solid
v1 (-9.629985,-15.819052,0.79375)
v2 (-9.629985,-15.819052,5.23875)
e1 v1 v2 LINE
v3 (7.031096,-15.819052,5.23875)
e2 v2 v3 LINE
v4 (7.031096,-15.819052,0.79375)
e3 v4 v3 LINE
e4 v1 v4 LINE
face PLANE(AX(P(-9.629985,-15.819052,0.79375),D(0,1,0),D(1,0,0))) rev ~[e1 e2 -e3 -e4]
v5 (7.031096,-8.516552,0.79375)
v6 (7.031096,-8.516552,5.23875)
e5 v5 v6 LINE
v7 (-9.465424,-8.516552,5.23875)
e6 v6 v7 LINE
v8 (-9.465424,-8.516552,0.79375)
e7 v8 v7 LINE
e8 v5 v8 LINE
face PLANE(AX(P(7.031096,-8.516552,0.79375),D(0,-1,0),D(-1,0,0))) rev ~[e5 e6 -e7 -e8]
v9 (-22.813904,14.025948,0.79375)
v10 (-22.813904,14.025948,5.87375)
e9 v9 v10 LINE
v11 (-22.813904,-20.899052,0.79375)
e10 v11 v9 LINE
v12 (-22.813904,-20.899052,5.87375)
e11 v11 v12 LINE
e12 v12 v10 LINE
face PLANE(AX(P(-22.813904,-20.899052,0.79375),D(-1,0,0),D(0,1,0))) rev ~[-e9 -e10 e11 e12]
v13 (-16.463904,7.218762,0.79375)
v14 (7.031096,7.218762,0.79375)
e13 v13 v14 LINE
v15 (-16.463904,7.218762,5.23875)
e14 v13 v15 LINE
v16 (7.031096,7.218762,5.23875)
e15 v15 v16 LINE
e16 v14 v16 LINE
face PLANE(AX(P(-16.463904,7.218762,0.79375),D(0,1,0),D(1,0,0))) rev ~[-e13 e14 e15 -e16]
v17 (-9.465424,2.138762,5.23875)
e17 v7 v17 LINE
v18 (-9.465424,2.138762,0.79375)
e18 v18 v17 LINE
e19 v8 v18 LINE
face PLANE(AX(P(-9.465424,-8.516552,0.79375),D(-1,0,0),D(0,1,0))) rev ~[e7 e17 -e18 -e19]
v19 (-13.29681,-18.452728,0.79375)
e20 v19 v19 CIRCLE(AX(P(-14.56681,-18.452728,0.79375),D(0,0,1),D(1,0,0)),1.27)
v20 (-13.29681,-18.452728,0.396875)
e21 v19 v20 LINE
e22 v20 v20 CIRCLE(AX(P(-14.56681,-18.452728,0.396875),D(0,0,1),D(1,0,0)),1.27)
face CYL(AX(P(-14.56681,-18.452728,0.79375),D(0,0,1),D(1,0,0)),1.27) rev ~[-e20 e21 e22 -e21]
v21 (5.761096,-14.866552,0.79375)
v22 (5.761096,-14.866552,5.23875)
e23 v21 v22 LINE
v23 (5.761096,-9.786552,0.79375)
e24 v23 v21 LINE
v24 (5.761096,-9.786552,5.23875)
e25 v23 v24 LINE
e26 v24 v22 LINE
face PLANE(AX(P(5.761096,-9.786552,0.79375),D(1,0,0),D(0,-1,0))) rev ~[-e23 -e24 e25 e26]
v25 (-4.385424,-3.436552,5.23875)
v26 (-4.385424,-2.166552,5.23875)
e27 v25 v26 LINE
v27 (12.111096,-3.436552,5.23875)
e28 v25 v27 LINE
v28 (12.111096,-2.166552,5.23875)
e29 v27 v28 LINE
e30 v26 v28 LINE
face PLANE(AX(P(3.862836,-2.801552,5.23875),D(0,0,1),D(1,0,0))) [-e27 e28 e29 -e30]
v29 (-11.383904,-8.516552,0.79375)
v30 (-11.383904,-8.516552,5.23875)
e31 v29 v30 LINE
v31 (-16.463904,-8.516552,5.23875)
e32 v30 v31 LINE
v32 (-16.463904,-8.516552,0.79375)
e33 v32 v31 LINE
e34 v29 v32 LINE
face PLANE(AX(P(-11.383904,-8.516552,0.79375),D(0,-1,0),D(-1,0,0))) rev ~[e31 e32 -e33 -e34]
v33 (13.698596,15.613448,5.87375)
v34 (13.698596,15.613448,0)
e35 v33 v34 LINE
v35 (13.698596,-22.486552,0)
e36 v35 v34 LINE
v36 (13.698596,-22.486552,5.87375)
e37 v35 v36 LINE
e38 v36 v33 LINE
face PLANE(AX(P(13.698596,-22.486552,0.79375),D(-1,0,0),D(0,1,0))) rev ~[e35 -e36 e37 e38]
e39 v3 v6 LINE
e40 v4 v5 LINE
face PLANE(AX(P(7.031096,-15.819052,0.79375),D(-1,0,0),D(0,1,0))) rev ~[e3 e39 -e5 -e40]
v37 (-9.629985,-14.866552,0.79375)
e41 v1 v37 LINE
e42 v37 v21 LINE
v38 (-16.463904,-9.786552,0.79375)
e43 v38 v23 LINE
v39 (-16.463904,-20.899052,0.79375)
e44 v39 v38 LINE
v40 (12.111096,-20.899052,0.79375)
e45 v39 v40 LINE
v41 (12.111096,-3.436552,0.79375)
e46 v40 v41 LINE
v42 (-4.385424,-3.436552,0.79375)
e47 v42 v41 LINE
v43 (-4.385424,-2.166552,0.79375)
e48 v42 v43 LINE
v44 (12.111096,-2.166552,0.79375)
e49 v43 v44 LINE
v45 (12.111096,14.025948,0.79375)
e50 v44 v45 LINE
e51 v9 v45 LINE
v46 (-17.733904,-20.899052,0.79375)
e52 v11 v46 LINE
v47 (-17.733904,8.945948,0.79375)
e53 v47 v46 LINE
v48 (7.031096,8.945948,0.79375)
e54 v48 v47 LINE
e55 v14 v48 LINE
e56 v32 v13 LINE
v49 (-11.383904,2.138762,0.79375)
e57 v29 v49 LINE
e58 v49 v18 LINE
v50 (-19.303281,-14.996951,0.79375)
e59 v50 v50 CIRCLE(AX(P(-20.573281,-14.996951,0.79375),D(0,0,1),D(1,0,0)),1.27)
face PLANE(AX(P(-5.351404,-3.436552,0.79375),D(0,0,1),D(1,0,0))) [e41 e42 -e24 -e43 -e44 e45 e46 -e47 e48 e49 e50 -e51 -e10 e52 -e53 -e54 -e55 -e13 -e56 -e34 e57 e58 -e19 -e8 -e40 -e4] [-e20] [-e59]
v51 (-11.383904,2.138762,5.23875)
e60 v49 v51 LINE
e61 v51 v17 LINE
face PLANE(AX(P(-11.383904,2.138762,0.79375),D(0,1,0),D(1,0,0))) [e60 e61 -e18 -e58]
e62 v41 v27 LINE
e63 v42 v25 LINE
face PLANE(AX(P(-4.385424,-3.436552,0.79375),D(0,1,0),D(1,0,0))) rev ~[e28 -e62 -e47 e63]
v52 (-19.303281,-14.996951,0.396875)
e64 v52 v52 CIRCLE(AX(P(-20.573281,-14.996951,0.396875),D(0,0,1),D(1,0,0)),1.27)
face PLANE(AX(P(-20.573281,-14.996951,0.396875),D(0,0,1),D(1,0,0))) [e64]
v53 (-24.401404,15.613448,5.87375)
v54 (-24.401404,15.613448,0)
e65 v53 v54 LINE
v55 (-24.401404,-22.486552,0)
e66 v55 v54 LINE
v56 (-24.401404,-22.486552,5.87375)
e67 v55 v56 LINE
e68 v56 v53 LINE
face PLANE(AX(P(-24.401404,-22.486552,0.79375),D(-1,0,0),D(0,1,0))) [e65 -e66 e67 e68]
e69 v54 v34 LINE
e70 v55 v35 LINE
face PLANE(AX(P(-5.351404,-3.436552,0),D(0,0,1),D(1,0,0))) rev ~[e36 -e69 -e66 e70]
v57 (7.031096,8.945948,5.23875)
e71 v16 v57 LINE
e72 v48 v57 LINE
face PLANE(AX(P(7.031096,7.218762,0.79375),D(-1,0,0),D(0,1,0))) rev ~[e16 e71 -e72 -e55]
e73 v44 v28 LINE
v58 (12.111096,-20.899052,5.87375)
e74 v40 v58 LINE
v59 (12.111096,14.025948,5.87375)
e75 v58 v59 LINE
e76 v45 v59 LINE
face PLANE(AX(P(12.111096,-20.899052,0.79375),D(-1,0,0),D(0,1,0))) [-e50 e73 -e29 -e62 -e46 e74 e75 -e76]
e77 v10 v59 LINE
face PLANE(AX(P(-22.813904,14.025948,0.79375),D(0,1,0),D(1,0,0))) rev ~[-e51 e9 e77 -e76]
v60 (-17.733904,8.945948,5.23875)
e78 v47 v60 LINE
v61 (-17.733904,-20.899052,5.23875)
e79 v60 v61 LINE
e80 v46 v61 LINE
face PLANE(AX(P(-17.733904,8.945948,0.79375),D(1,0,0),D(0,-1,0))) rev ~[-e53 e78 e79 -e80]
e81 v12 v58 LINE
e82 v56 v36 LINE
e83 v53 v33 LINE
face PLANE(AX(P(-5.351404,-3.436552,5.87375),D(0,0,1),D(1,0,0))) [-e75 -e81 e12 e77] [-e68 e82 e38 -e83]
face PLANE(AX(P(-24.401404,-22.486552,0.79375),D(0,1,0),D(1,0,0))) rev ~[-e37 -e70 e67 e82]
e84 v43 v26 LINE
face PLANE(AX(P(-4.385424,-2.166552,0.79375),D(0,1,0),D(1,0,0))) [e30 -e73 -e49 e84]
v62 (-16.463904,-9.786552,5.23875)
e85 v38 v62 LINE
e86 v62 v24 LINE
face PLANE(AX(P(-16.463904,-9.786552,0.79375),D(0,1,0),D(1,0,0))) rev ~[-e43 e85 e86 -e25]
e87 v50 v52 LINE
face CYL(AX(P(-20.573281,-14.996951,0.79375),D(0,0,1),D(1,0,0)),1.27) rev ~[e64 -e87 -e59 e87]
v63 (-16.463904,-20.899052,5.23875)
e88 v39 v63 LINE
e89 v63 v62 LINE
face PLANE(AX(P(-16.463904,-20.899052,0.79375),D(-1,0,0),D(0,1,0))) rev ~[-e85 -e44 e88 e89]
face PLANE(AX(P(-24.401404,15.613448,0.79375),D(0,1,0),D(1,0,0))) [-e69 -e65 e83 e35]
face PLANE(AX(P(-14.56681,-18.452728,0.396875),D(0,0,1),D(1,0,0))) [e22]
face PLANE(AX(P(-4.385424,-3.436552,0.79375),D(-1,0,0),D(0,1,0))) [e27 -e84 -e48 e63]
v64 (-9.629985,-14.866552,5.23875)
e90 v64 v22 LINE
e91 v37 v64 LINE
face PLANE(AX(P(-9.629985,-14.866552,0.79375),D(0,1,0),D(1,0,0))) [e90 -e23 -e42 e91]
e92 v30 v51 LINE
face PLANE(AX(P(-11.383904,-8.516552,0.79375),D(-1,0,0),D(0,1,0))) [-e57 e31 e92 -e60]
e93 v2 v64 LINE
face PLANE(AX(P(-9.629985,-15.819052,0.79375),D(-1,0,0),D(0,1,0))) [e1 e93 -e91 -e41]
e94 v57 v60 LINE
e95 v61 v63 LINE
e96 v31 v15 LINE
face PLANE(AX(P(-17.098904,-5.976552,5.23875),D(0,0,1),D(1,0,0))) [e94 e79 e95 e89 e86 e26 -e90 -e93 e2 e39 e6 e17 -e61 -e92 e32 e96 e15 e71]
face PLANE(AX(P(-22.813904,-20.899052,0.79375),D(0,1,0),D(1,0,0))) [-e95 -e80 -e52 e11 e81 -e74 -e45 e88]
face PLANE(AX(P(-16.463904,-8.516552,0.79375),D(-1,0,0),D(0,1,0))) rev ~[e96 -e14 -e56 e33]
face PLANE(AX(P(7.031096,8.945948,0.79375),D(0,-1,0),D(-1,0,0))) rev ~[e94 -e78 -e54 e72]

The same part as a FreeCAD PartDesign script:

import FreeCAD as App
import Part
import Sketcher
Q = App.Units.Quantity


def add_polygon(sketch, points):
    """Adds a closed chain of lines whose ends are joined by coincident constraints."""
    first, n = sketch.GeometryCount, len(points)
    for a, b in zip(points, points[1:] + points[:1]):
        sketch.addGeometry(Part.LineSegment(App.Vector(*a, 0), App.Vector(*b, 0)), False)
    for i in range(n):
        sketch.addConstraint(Sketcher.Constraint("Coincident", first + i, 2, first + (i + 1) % n, 1))

doc = App.newDocument("Part")
body = doc.addObject("PartDesign::Body", "Body")

# Sketch on XY plane
sketch1 = doc.addObject("Sketcher::SketchObject", "Sketch")
body.addObject(sketch1)
sketch1.AttachmentSupport = (doc.XY_Plane, [""])
sketch1.MapMode = "FlatFace"
add_polygon(sketch1, [(-24, 16), (-24, -22), (14, -22), (14, 16)])  # lines 0-3
sketch1.addConstraint([
    Sketcher.Constraint("Vertical", 0),
    Sketcher.Constraint("Horizontal", 1),
    Sketcher.Constraint("Vertical", 2),
    Sketcher.Constraint("Horizontal", 3),
    Sketcher.Constraint("Equal", 3, 0),
    Sketcher.Constraint("DistanceX", 1, 1, 1, 2, Q("1.5 in")),
    Sketcher.Constraint("DistanceX", 0, 2, -1, 1, 24.401404),
    Sketcher.Constraint("DistanceY", 0, 2, -1, 1, 22.486552),
])
pad1 = doc.addObject("PartDesign::Pad", "Pad")
body.addObject(pad1)
pad1.Profile = sketch1
pad1.Length = Q("0.03125 in")

# Sketch on XY plane
sketch2 = doc.addObject("Sketcher::SketchObject", "Sketch001")
body.addObject(sketch2)
sketch2.AttachmentSupport = (doc.XY_Plane, [""])
sketch2.MapMode = "FlatFace"
sketch2.AttachmentOffset = App.Placement(App.Vector(0, 0, 0.03125 * 25.4), App.Rotation())
add_polygon(sketch2, [(-24, 16), (-24, -22), (14, -22), (14, 16)])  # lines 0-3
add_polygon(sketch2, [(12, -21), (-23, -21), (-23, 14), (12, 14)])  # lines 4-7
sketch2.addConstraint([
    Sketcher.Constraint("Vertical", 0),
    Sketcher.Constraint("Horizontal", 1),
    Sketcher.Constraint("Vertical", 2),
    Sketcher.Constraint("Horizontal", 3),
    Sketcher.Constraint("Horizontal", 4),
    Sketcher.Constraint("Vertical", 5),
    Sketcher.Constraint("Horizontal", 6),
    Sketcher.Constraint("Vertical", 7),
    Sketcher.Constraint("Equal", 3, 0),
    Sketcher.Constraint("Equal", 6, 5),
    Sketcher.Constraint("DistanceX", 1, 1, 1, 2, Q("1.5 in")),
    Sketcher.Constraint("DistanceX", 4, 2, 4, 1, Q("1.375 in")),
    Sketcher.Constraint("DistanceX", 0, 2, 4, 2, Q("0.0625 in")),
    Sketcher.Constraint("DistanceY", 0, 2, 4, 2, Q("0.0625 in")),
    Sketcher.Constraint("DistanceX", 0, 2, -1, 1, 24.401404),
    Sketcher.Constraint("DistanceY", 0, 2, -1, 1, 22.486552),
])
pad2 = doc.addObject("PartDesign::Pad", "Pad001")
body.addObject(pad2)
pad2.Profile = sketch2
pad2.Length = Q("0.2 in")

# Sketch on XY plane
sketch3 = doc.addObject("Sketcher::SketchObject", "Sketch002")
body.addObject(sketch3)
sketch3.AttachmentSupport = (doc.XY_Plane, [""])
sketch3.MapMode = "FlatFace"
sketch3.AttachmentOffset = App.Placement(App.Vector(0, 0, 0.03125 * 25.4), App.Rotation())
add_polygon(sketch3, [(-17.7, 8.9), (-17.7, -20.9), (-16.5, -20.9), (-16.5, -9.8), (5.8, -9.8), (5.8, -14.9), (-9.6, -14.9), (-9.6, -15.8), (7, -15.8), (7, -8.5), (-9.5, -8.5), (-9.5, 2.1), (-11.4, 2.1), (-11.4, -8.5), (-16.5, -8.5), (-16.5, 7.2), (7, 7.2), (7, 8.9)])  # lines 0-17
add_polygon(sketch3, [(-4.4, -2.2), (-4.4, -3.4), (12.1, -3.4), (12.1, -2.2)])  # lines 18-21
sketch3.addConstraint([
    Sketcher.Constraint("Vertical", 0),
    Sketcher.Constraint("Horizontal", 1),
    Sketcher.Constraint("Vertical", 2),
    Sketcher.Constraint("Horizontal", 3),
    Sketcher.Constraint("Vertical", 4),
    Sketcher.Constraint("Horizontal", 5),
    Sketcher.Constraint("Vertical", 6),
    Sketcher.Constraint("Horizontal", 7),
    Sketcher.Constraint("Vertical", 8),
    Sketcher.Constraint("Horizontal", 9),
    Sketcher.Constraint("Vertical", 10),
    Sketcher.Constraint("Horizontal", 11),
    Sketcher.Constraint("Vertical", 12),
    Sketcher.Constraint("Horizontal", 13),
    Sketcher.Constraint("Vertical", 14),
    Sketcher.Constraint("Horizontal", 15),
    Sketcher.Constraint("Vertical", 16),
    Sketcher.Constraint("Horizontal", 17),
    Sketcher.Constraint("Vertical", 18),
    Sketcher.Constraint("Horizontal", 19),
    Sketcher.Constraint("Vertical", 20),
    Sketcher.Constraint("Horizontal", 21),
    Sketcher.Constraint("Horizontal", 9, 2, 12, 2),
    Sketcher.Constraint("Vertical", 2, 2, 13, 2),
    Sketcher.Constraint("Vertical", 8, 2, 15, 2),
    Sketcher.Constraint("Equal", 9, 19),
    Sketcher.Constraint("Equal", 13, 4),
    Sketcher.Constraint("Equal", 1, 18),
    Sketcher.Constraint("DistanceX", 13, 2, 13, 1, Q("0.2 in")),
    Sketcher.Constraint("DistanceX", 1, 1, 1, 2, Q("0.05 in")),
    Sketcher.Constraint("DistanceY", 1, 2, 6, 2, Q("0.2 in")),
    Sketcher.Constraint("DistanceY", 11, 2, 14, 2, Q("0.2 in")),
    Sketcher.Constraint("DistanceX", 9, 2, 18, 2, Q("0.2 in")),
    Sketcher.Constraint("DistanceY", 9, 2, 18, 2, Q("0.2 in")),
    Sketcher.Constraint("DistanceY", 3, 2, 20, 2, Q("0.3 in")),
    Sketcher.Constraint("DistanceX", 3, 1, 3, 2, Q("0.875 in")),
    Sketcher.Constraint("DistanceX", 15, 1, 15, 2, Q("0.925 in")),
    Sketcher.Constraint("DistanceY", 0, 2, 0, 1, Q("1.175 in")),
    Sketcher.Constraint("DistanceY", 2, 1, 2, 2, Q("0.4375 in")),
    Sketcher.Constraint("DistanceX", 5, 2, 5, 1, 15.391082),
    Sketcher.Constraint("DistanceX", 9, 2, 9, 1, 16.496521),
    Sketcher.Constraint("DistanceY", 10, 1, 10, 2, 10.655314),
    Sketcher.Constraint("DistanceX", 0, 2, -1, 1, 17.733904),
    Sketcher.Constraint("DistanceY", 0, 2, -1, 1, 20.899052),
])
pad3 = doc.addObject("PartDesign::Pad", "Pad002")
body.addObject(pad3)
pad3.Profile = sketch3
pad3.Length = Q("0.175 in")

# Sketch on XY plane
sketch4 = doc.addObject("Sketcher::SketchObject", "Sketch003")
body.addObject(sketch4)
sketch4.AttachmentSupport = (doc.XY_Plane, [""])
sketch4.MapMode = "FlatFace"
sketch4.AttachmentOffset = App.Placement(App.Vector(0, 0, 0.03125 * 25.4), App.Rotation())
sketch4.addGeometry([
    Part.Circle(App.Vector(-20.6, -15, 0), App.Vector(0, 0, 1), 1.3),
    Part.Circle(App.Vector(-14.6, -18.5, 0), App.Vector(0, 0, 1), 1.3),
], False)
sketch4.addConstraint([
    Sketcher.Constraint("Equal", 0, 1),
    Sketcher.Constraint("Diameter", 0, Q("0.1 in")),
    Sketcher.Constraint("DistanceX", 0, 3, -1, 1, 20.573281),
    Sketcher.Constraint("DistanceY", 0, 3, -1, 1, 14.996951),
    Sketcher.Constraint("DistanceX", 1, 3, -1, 1, 14.56681),
    Sketcher.Constraint("DistanceY", 1, 3, -1, 1, 18.452728),
])
pocket1 = doc.addObject("PartDesign::Pocket", "Pocket")
body.addObject(pocket1)
pocket1.Profile = sketch4
pocket1.Length = Q("0.015625 in")

doc.recompute()
